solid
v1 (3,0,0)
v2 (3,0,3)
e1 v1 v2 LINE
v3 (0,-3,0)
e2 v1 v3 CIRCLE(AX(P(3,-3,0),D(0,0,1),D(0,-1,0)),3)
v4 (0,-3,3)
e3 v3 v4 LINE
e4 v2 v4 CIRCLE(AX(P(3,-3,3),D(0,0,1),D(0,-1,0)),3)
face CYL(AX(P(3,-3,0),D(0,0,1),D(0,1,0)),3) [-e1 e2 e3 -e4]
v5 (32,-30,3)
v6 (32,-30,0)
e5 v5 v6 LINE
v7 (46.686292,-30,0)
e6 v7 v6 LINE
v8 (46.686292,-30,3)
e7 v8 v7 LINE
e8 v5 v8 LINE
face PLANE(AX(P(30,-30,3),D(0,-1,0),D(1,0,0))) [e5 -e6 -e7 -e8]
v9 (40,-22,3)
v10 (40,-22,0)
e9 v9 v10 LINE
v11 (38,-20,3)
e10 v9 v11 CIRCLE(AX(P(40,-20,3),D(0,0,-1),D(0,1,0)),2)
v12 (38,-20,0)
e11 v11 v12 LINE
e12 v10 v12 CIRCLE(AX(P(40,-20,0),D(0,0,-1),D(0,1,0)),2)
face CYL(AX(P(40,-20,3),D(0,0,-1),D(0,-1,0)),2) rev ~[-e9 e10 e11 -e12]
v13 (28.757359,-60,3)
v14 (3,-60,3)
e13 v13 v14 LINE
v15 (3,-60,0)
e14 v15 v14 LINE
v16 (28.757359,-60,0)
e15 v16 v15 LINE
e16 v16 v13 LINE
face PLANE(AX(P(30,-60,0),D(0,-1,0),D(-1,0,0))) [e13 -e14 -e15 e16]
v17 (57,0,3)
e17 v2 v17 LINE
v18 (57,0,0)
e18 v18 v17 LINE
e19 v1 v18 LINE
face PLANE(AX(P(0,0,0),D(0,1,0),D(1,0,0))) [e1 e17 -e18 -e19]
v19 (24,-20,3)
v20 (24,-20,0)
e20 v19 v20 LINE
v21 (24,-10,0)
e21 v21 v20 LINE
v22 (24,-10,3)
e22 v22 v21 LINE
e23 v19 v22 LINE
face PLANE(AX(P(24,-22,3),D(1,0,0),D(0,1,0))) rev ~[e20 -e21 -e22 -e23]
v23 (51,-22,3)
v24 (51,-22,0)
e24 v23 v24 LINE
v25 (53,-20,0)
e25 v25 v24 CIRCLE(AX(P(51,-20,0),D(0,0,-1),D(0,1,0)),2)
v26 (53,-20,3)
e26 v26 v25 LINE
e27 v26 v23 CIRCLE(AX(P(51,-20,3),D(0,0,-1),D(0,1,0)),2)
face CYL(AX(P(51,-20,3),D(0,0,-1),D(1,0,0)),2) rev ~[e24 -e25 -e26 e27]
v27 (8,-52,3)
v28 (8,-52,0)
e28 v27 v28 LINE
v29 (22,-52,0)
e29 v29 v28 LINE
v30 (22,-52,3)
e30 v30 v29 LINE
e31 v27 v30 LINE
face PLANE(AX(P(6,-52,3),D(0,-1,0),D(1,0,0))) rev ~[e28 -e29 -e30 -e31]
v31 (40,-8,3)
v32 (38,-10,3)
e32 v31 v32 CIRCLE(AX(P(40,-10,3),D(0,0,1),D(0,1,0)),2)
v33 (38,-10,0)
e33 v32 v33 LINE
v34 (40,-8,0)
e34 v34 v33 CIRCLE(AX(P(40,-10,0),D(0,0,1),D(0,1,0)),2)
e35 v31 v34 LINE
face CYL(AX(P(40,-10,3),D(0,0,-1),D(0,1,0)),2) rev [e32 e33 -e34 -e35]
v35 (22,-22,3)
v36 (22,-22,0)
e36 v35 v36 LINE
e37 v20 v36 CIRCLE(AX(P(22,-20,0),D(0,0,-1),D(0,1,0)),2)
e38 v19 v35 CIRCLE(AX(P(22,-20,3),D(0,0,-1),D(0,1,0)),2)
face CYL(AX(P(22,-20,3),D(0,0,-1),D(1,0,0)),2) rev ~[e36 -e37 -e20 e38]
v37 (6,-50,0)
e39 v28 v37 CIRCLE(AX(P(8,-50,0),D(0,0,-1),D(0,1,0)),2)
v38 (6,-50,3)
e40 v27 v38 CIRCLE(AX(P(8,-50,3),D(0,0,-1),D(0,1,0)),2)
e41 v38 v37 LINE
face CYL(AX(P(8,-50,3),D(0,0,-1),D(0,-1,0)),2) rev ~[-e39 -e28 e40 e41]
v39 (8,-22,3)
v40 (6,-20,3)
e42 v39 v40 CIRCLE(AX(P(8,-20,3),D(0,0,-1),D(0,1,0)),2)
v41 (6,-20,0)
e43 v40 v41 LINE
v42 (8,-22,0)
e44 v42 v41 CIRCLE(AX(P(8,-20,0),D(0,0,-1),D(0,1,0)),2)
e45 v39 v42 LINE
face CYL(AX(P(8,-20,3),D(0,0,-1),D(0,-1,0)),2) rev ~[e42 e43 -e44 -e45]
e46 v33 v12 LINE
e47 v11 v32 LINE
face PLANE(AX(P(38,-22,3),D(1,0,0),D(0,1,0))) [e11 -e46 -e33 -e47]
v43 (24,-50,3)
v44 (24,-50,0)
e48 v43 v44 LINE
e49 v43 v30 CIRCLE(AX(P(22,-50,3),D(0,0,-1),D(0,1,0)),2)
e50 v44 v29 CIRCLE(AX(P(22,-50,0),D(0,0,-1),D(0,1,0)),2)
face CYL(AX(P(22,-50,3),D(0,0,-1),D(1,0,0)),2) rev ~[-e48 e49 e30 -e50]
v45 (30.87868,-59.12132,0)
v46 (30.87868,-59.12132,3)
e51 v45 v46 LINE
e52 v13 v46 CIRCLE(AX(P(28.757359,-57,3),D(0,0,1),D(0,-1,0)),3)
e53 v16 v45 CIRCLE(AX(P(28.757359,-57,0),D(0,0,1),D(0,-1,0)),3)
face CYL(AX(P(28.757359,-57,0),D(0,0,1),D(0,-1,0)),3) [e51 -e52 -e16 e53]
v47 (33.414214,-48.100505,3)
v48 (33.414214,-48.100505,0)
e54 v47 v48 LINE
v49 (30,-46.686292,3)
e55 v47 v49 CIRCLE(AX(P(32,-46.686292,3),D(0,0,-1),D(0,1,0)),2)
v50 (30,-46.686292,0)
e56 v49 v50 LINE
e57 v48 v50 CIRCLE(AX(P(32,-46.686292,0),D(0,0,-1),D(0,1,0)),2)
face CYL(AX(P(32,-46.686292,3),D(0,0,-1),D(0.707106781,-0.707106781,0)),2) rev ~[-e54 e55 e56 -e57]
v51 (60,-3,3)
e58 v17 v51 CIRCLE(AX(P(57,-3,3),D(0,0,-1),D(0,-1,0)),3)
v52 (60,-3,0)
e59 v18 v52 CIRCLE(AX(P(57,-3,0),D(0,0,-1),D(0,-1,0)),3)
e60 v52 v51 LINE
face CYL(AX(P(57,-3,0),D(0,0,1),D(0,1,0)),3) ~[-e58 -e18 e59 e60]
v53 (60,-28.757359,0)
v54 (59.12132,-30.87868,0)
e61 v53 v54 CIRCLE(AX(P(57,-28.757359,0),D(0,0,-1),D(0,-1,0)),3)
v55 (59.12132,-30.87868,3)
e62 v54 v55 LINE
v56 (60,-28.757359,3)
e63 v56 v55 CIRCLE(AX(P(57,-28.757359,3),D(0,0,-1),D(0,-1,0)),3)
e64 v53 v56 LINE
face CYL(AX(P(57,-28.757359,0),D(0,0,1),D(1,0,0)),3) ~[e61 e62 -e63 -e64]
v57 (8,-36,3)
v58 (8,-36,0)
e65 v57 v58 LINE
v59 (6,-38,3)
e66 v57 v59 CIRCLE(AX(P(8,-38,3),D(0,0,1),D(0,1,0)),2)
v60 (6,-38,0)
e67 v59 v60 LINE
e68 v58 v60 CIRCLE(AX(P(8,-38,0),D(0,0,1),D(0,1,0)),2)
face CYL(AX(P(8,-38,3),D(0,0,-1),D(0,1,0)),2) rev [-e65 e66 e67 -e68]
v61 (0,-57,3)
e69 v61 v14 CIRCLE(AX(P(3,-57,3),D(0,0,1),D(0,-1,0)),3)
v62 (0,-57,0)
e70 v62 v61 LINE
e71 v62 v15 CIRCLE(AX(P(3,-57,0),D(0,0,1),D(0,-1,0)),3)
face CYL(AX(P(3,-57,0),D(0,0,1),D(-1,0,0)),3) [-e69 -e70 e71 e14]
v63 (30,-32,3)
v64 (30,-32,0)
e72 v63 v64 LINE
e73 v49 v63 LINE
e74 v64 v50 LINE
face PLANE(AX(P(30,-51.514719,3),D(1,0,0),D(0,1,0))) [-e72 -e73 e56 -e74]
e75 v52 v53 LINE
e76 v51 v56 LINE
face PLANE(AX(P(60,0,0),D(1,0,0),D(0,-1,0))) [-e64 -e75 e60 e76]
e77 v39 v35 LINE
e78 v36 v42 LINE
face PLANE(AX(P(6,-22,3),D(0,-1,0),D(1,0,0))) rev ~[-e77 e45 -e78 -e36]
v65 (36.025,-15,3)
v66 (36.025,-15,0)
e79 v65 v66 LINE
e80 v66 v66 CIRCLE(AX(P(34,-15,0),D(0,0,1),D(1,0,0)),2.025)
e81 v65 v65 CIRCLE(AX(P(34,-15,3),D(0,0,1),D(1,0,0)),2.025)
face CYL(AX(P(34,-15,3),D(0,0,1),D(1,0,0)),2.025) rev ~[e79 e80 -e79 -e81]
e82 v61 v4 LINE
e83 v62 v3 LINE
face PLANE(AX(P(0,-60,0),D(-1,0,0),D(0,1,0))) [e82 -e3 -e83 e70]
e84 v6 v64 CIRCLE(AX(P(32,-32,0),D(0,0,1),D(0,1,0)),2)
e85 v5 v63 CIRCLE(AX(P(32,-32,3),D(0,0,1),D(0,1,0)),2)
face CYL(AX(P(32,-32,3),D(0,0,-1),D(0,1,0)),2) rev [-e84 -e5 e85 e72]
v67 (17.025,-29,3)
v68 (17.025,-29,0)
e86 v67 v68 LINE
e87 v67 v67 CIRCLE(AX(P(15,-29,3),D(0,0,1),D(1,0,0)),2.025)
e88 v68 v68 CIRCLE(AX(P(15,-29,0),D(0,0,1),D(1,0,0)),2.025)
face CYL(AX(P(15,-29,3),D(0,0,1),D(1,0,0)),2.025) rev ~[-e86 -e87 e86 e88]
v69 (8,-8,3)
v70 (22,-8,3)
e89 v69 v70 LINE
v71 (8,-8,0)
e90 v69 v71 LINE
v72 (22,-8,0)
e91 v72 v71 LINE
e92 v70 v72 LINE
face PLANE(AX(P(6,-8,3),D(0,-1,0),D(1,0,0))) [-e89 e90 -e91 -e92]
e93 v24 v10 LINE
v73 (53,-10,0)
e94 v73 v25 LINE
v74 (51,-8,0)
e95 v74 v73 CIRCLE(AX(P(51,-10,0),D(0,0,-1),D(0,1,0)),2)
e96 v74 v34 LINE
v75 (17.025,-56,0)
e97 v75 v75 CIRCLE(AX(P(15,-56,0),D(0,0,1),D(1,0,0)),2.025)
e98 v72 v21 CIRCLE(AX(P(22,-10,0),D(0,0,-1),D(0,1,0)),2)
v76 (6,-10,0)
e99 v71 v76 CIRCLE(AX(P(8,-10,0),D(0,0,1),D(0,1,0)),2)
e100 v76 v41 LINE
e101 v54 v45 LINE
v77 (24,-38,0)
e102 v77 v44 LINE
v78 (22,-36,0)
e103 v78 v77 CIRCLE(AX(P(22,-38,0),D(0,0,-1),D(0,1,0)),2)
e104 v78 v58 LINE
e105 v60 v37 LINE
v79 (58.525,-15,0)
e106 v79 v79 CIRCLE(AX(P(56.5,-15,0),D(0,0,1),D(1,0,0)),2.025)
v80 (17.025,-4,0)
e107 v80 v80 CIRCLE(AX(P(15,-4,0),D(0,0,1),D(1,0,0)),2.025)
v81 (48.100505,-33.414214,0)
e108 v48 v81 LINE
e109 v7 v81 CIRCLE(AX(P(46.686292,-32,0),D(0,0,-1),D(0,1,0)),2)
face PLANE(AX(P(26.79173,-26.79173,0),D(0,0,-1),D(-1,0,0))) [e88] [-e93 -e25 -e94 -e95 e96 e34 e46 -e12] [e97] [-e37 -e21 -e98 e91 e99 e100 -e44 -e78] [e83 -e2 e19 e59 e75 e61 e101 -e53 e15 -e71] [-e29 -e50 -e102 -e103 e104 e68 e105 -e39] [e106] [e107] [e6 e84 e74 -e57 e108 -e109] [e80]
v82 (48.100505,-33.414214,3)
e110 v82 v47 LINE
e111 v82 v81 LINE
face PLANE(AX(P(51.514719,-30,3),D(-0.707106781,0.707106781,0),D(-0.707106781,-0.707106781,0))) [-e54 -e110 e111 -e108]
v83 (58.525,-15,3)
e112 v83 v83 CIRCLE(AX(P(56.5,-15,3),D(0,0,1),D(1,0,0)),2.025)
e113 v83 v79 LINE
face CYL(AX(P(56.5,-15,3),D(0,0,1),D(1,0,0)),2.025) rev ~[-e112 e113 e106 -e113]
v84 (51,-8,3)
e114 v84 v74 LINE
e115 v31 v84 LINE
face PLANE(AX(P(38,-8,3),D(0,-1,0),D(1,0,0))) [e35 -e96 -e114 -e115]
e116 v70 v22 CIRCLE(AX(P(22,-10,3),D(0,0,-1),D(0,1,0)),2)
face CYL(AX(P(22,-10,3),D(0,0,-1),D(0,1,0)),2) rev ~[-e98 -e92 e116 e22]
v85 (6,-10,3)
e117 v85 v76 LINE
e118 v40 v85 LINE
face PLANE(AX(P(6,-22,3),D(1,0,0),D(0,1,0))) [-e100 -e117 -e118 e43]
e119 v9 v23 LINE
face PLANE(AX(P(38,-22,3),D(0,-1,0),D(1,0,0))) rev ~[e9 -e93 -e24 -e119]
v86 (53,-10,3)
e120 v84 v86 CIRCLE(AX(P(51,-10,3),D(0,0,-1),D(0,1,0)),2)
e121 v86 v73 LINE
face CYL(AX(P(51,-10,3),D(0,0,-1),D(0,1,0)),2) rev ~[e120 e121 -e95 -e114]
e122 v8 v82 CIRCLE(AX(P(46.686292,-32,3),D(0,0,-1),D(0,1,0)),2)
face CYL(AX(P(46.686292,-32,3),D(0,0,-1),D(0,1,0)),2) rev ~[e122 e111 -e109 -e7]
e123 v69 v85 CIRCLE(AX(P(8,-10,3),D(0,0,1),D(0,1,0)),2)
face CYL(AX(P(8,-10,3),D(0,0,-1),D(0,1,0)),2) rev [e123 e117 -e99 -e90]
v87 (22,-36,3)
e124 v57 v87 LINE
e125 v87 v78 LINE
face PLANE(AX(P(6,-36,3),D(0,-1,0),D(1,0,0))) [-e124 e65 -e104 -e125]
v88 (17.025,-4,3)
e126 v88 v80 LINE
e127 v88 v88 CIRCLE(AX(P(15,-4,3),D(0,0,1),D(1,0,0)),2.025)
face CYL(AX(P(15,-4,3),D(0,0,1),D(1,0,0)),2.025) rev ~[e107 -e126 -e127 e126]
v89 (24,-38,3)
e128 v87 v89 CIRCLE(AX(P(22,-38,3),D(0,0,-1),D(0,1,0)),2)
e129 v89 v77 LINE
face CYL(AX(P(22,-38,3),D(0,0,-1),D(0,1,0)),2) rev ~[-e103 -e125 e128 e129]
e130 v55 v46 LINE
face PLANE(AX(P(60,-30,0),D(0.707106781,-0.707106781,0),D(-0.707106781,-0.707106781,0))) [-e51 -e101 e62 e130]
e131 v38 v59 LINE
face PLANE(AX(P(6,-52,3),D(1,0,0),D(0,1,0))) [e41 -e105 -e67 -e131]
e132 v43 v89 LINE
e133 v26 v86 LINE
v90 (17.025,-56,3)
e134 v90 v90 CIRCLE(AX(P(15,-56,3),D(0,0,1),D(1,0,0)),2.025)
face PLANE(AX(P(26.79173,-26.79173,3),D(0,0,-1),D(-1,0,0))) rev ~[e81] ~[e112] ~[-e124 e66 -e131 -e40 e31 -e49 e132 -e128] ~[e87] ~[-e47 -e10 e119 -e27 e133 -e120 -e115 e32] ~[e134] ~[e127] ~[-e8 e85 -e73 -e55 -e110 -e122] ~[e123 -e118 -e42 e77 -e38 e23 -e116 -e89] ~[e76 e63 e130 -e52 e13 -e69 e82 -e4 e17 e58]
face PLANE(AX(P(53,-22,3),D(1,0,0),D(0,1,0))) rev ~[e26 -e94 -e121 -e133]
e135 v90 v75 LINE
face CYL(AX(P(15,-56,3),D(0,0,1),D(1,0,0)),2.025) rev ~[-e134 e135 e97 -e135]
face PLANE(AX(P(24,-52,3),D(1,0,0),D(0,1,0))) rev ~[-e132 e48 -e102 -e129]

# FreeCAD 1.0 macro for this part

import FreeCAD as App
import Part
import Sketcher


def edges_at(feature, points):
    """Names of the edges that pass closest to the given points."""
    edges = feature.Shape.Edges
    near = lambda p: min(range(len(edges)), key=lambda i: edges[i].distToShape(Part.Vertex(*p))[0])
    return sorted({f"Edge{near(p) + 1}" for p in points})


def add_polygon(sketch, points):
    """Adds a closed chain of lines whose ends are joined by coincident constraints."""
    first, n = sketch.GeometryCount, len(points)
    for a, b in zip(points, points[1:] + points[:1]):
        sketch.addGeometry(Part.LineSegment(App.Vector(*a, 0), App.Vector(*b, 0)), False)
    for i in range(n):
        sketch.addConstraint(Sketcher.Constraint("Coincident", first + i, 2, first + (i + 1) % n, 1))

doc = App.newDocument("Part")
body = doc.addObject("PartDesign::Body", "Body")

# Sketch on XY plane
sketch1 = doc.addObject("Sketcher::SketchObject", "Sketch")
body.addObject(sketch1)
sketch1.AttachmentSupport = (doc.XY_Plane, [""])
sketch1.MapMode = "FlatFace"
add_polygon(sketch1, [(60, 0), (0, 0), (0, -60), (30, -60), (60, -30)])  # lines 0-4
sketch1.addConstraint([
    Sketcher.Constraint("Horizontal", 0),
    Sketcher.Constraint("Vertical", 1),
    Sketcher.Constraint("Horizontal", 2),
    Sketcher.Constraint("Vertical", 4),
    Sketcher.Constraint("Coincident", 0, 2, -1, 1),
    Sketcher.Constraint("Equal", 0, 1),
    Sketcher.Constraint("Equal", 2, 4),
    Sketcher.Constraint("DistanceX", 0, 2, 0, 1, 60.0),
    Sketcher.Constraint("DistanceX", 2, 1, 2, 2, 30.0),
])
pad1 = doc.addObject("PartDesign::Pad", "Pad")
body.addObject(pad1)
pad1.Profile = sketch1
pad1.Length = 3

# Sketch on XY plane
sketch2 = doc.addObject("Sketcher::SketchObject", "Sketch001")
body.addObject(sketch2)
sketch2.AttachmentSupport = (doc.XY_Plane, [""])
sketch2.MapMode = "FlatFace"
sketch2.AttachmentOffset = App.Placement(App.Vector(0, 0, 3), App.Rotation())
add_polygon(sketch2, [(30, -30), (30, -51.514719), (51.514719, -30)])  # lines 0-2
add_polygon(sketch2, [(6, -8), (6, -22), (24, -22), (24, -8)])  # lines 3-6
add_polygon(sketch2, [(6, -36), (6, -52), (24, -52), (24, -36)])  # lines 7-10
add_polygon(sketch2, [(38, -8), (38, -22), (53, -22), (53, -8)])  # lines 11-14
sketch2.addConstraint([
    Sketcher.Constraint("Vertical", 0),
    Sketcher.Constraint("Horizontal", 2),
    Sketcher.Constraint("Vertical", 3),
    Sketcher.Constraint("Horizontal", 4),
    Sketcher.Constraint("Vertical", 5),
    Sketcher.Constraint("Horizontal", 6),
    Sketcher.Constraint("Vertical", 7),
    Sketcher.Constraint("Horizontal", 8),
    Sketcher.Constraint("Vertical", 9),
    Sketcher.Constraint("Horizontal", 10),
    Sketcher.Constraint("Vertical", 11),
    Sketcher.Constraint("Horizontal", 12),
    Sketcher.Constraint("Vertical", 13),
    Sketcher.Constraint("Horizontal", 14),
    Sketcher.Constraint("Horizontal", 4, 2, 11, 2),
    Sketcher.Constraint("Horizontal", 6, 2, 13, 2),
    Sketcher.Constraint("Vertical", 6, 2, 7, 2),
    Sketcher.Constraint("Vertical", 5, 2, 8, 2),
    Sketcher.Constraint("Equal", 2, 0),
    Sketcher.Constraint("DistanceX", 4, 1, 4, 2, 18.0),
    Sketcher.Constraint("DistanceX", 12, 1, 12, 2, 15.0),
    Sketcher.Constraint("DistanceY", 3, 2, 3, 1, 14.0),
    Sketcher.Constraint("DistanceY", 7, 2, 7, 1, 16.0),
    Sketcher.Constraint("DistanceX", -1, 1, 0, 2, 30.0),
    Sketcher.Constraint("DistanceY", 1, 2, -1, 1, 30.0),
    Sketcher.Constraint("DistanceX", -1, 1, 3, 2, 6.0),
    Sketcher.Constraint("DistanceY", 3, 2, -1, 1, 22.0),
    Sketcher.Constraint("DistanceY", 7, 2, -1, 1, 52.0),
    Sketcher.Constraint("DistanceX", -1, 1, 11, 2, 38.0),
    Sketcher.Constraint("DistanceX", 2, 2, 2, 1, 21.514719),
])
pocket1 = doc.addObject("PartDesign::Pocket", "Pocket")
body.addObject(pocket1)
pocket1.Profile = sketch2
pocket1.Length = 10
doc.recompute()

fillet = doc.addObject("PartDesign::Fillet", "Fillet")
body.addObject(fillet)
fillet.Base = (pocket1, edges_at(pocket1, [
    (53, -8, 1.5),
    (53, -22, 1.5),
    (38, -22, 1.5),
    (38, -8, 1.5),
    (51.515, -30, 1.5),
    (30, -51.515, 1.5),
    (30, -30, 1.5),
    (24, -36, 1.5),
    (24, -52, 1.5),
    (6, -52, 1.5),
    (6, -36, 1.5),
    (24, -8, 1.5),
    (24, -22, 1.5),
    (6, -22, 1.5),
    (6, -8, 1.5),
]))
fillet.Radius = 2
doc.recompute()

fillet2 = doc.addObject("PartDesign::Fillet", "Fillet001")
body.addObject(fillet2)
fillet2.Base = (fillet, edges_at(fillet, [
    (0, 0, 1.5),
    (60, 0, 1.5),
    (60, -30, 1.5),
    (30, -60, 1.5),
    (0, -60, 1.5),
]))
fillet2.Radius = 3

# Sketch on XY plane
sketch3 = doc.addObject("Sketcher::SketchObject", "Sketch002")
body.addObject(sketch3)
sketch3.AttachmentSupport = (doc.XY_Plane, [""])
sketch3.MapMode = "FlatFace"
sketch3.AttachmentOffset = App.Placement(App.Vector(0, 0, 3), App.Rotation())
sketch3.addGeometry([
    Part.Circle(App.Vector(15, -29, 0), App.Vector(0, 0, 1), 2.025),
    Part.Circle(App.Vector(15, -56, 0), App.Vector(0, 0, 1), 2.025),
    Part.Circle(App.Vector(15, -4, 0), App.Vector(0, 0, 1), 2.025),
], False)
sketch3.addConstraint([
    Sketcher.Constraint("Equal", 0, 1),
    Sketcher.Constraint("Equal", 1, 2),
    Sketcher.Constraint("Vertical", 0, 3, 1, 3),
    Sketcher.Constraint("Vertical", 1, 3, 2, 3),
    Sketcher.Constraint("Diameter", 0, 4.05),
    Sketcher.Constraint("DistanceX", -1, 1, 0, 3, 15.0),
    Sketcher.Constraint("DistanceY", 0, 3, -1, 1, 29.0),
    Sketcher.Constraint("DistanceY", 1, 3, -1, 1, 56.0),
    Sketcher.Constraint("DistanceY", 2, 3, -1, 1, 4.0),
])
pocket2 = doc.addObject("PartDesign::Pocket", "Pocket001")
body.addObject(pocket2)
pocket2.Profile = sketch3
pocket2.Length = 10

# Sketch on XY plane
sketch4 = doc.addObject("Sketcher::SketchObject", "Sketch003")
body.addObject(sketch4)
sketch4.AttachmentSupport = (doc.XY_Plane, [""])
sketch4.MapMode = "FlatFace"
sketch4.AttachmentOffset = App.Placement(App.Vector(0, 0, 3), App.Rotation())
sketch4.addGeometry([
    Part.Circle(App.Vector(34, -15, 0), App.Vector(0, 0, 1), 2.025),
    Part.Circle(App.Vector(56.5, -15, 0), App.Vector(0, 0, 1), 2.025),
], False)
sketch4.addConstraint([
    Sketcher.Constraint("Equal", 0, 1),
    Sketcher.Constraint("Horizontal", 0, 3, 1, 3),
    Sketcher.Constraint("Diameter", 0, 4.05),
    Sketcher.Constraint("DistanceX", -1, 1, 0, 3, 34.0),
    Sketcher.Constraint("DistanceY", 0, 3, -1, 1, 15.0),
    Sketcher.Constraint("DistanceX", -1, 1, 1, 3, 56.5),
])
pocket3 = doc.addObject("PartDesign::Pocket", "Pocket002")
body.addObject(pocket3)
pocket3.Profile = sketch4
pocket3.Length = 10

doc.recompute()
